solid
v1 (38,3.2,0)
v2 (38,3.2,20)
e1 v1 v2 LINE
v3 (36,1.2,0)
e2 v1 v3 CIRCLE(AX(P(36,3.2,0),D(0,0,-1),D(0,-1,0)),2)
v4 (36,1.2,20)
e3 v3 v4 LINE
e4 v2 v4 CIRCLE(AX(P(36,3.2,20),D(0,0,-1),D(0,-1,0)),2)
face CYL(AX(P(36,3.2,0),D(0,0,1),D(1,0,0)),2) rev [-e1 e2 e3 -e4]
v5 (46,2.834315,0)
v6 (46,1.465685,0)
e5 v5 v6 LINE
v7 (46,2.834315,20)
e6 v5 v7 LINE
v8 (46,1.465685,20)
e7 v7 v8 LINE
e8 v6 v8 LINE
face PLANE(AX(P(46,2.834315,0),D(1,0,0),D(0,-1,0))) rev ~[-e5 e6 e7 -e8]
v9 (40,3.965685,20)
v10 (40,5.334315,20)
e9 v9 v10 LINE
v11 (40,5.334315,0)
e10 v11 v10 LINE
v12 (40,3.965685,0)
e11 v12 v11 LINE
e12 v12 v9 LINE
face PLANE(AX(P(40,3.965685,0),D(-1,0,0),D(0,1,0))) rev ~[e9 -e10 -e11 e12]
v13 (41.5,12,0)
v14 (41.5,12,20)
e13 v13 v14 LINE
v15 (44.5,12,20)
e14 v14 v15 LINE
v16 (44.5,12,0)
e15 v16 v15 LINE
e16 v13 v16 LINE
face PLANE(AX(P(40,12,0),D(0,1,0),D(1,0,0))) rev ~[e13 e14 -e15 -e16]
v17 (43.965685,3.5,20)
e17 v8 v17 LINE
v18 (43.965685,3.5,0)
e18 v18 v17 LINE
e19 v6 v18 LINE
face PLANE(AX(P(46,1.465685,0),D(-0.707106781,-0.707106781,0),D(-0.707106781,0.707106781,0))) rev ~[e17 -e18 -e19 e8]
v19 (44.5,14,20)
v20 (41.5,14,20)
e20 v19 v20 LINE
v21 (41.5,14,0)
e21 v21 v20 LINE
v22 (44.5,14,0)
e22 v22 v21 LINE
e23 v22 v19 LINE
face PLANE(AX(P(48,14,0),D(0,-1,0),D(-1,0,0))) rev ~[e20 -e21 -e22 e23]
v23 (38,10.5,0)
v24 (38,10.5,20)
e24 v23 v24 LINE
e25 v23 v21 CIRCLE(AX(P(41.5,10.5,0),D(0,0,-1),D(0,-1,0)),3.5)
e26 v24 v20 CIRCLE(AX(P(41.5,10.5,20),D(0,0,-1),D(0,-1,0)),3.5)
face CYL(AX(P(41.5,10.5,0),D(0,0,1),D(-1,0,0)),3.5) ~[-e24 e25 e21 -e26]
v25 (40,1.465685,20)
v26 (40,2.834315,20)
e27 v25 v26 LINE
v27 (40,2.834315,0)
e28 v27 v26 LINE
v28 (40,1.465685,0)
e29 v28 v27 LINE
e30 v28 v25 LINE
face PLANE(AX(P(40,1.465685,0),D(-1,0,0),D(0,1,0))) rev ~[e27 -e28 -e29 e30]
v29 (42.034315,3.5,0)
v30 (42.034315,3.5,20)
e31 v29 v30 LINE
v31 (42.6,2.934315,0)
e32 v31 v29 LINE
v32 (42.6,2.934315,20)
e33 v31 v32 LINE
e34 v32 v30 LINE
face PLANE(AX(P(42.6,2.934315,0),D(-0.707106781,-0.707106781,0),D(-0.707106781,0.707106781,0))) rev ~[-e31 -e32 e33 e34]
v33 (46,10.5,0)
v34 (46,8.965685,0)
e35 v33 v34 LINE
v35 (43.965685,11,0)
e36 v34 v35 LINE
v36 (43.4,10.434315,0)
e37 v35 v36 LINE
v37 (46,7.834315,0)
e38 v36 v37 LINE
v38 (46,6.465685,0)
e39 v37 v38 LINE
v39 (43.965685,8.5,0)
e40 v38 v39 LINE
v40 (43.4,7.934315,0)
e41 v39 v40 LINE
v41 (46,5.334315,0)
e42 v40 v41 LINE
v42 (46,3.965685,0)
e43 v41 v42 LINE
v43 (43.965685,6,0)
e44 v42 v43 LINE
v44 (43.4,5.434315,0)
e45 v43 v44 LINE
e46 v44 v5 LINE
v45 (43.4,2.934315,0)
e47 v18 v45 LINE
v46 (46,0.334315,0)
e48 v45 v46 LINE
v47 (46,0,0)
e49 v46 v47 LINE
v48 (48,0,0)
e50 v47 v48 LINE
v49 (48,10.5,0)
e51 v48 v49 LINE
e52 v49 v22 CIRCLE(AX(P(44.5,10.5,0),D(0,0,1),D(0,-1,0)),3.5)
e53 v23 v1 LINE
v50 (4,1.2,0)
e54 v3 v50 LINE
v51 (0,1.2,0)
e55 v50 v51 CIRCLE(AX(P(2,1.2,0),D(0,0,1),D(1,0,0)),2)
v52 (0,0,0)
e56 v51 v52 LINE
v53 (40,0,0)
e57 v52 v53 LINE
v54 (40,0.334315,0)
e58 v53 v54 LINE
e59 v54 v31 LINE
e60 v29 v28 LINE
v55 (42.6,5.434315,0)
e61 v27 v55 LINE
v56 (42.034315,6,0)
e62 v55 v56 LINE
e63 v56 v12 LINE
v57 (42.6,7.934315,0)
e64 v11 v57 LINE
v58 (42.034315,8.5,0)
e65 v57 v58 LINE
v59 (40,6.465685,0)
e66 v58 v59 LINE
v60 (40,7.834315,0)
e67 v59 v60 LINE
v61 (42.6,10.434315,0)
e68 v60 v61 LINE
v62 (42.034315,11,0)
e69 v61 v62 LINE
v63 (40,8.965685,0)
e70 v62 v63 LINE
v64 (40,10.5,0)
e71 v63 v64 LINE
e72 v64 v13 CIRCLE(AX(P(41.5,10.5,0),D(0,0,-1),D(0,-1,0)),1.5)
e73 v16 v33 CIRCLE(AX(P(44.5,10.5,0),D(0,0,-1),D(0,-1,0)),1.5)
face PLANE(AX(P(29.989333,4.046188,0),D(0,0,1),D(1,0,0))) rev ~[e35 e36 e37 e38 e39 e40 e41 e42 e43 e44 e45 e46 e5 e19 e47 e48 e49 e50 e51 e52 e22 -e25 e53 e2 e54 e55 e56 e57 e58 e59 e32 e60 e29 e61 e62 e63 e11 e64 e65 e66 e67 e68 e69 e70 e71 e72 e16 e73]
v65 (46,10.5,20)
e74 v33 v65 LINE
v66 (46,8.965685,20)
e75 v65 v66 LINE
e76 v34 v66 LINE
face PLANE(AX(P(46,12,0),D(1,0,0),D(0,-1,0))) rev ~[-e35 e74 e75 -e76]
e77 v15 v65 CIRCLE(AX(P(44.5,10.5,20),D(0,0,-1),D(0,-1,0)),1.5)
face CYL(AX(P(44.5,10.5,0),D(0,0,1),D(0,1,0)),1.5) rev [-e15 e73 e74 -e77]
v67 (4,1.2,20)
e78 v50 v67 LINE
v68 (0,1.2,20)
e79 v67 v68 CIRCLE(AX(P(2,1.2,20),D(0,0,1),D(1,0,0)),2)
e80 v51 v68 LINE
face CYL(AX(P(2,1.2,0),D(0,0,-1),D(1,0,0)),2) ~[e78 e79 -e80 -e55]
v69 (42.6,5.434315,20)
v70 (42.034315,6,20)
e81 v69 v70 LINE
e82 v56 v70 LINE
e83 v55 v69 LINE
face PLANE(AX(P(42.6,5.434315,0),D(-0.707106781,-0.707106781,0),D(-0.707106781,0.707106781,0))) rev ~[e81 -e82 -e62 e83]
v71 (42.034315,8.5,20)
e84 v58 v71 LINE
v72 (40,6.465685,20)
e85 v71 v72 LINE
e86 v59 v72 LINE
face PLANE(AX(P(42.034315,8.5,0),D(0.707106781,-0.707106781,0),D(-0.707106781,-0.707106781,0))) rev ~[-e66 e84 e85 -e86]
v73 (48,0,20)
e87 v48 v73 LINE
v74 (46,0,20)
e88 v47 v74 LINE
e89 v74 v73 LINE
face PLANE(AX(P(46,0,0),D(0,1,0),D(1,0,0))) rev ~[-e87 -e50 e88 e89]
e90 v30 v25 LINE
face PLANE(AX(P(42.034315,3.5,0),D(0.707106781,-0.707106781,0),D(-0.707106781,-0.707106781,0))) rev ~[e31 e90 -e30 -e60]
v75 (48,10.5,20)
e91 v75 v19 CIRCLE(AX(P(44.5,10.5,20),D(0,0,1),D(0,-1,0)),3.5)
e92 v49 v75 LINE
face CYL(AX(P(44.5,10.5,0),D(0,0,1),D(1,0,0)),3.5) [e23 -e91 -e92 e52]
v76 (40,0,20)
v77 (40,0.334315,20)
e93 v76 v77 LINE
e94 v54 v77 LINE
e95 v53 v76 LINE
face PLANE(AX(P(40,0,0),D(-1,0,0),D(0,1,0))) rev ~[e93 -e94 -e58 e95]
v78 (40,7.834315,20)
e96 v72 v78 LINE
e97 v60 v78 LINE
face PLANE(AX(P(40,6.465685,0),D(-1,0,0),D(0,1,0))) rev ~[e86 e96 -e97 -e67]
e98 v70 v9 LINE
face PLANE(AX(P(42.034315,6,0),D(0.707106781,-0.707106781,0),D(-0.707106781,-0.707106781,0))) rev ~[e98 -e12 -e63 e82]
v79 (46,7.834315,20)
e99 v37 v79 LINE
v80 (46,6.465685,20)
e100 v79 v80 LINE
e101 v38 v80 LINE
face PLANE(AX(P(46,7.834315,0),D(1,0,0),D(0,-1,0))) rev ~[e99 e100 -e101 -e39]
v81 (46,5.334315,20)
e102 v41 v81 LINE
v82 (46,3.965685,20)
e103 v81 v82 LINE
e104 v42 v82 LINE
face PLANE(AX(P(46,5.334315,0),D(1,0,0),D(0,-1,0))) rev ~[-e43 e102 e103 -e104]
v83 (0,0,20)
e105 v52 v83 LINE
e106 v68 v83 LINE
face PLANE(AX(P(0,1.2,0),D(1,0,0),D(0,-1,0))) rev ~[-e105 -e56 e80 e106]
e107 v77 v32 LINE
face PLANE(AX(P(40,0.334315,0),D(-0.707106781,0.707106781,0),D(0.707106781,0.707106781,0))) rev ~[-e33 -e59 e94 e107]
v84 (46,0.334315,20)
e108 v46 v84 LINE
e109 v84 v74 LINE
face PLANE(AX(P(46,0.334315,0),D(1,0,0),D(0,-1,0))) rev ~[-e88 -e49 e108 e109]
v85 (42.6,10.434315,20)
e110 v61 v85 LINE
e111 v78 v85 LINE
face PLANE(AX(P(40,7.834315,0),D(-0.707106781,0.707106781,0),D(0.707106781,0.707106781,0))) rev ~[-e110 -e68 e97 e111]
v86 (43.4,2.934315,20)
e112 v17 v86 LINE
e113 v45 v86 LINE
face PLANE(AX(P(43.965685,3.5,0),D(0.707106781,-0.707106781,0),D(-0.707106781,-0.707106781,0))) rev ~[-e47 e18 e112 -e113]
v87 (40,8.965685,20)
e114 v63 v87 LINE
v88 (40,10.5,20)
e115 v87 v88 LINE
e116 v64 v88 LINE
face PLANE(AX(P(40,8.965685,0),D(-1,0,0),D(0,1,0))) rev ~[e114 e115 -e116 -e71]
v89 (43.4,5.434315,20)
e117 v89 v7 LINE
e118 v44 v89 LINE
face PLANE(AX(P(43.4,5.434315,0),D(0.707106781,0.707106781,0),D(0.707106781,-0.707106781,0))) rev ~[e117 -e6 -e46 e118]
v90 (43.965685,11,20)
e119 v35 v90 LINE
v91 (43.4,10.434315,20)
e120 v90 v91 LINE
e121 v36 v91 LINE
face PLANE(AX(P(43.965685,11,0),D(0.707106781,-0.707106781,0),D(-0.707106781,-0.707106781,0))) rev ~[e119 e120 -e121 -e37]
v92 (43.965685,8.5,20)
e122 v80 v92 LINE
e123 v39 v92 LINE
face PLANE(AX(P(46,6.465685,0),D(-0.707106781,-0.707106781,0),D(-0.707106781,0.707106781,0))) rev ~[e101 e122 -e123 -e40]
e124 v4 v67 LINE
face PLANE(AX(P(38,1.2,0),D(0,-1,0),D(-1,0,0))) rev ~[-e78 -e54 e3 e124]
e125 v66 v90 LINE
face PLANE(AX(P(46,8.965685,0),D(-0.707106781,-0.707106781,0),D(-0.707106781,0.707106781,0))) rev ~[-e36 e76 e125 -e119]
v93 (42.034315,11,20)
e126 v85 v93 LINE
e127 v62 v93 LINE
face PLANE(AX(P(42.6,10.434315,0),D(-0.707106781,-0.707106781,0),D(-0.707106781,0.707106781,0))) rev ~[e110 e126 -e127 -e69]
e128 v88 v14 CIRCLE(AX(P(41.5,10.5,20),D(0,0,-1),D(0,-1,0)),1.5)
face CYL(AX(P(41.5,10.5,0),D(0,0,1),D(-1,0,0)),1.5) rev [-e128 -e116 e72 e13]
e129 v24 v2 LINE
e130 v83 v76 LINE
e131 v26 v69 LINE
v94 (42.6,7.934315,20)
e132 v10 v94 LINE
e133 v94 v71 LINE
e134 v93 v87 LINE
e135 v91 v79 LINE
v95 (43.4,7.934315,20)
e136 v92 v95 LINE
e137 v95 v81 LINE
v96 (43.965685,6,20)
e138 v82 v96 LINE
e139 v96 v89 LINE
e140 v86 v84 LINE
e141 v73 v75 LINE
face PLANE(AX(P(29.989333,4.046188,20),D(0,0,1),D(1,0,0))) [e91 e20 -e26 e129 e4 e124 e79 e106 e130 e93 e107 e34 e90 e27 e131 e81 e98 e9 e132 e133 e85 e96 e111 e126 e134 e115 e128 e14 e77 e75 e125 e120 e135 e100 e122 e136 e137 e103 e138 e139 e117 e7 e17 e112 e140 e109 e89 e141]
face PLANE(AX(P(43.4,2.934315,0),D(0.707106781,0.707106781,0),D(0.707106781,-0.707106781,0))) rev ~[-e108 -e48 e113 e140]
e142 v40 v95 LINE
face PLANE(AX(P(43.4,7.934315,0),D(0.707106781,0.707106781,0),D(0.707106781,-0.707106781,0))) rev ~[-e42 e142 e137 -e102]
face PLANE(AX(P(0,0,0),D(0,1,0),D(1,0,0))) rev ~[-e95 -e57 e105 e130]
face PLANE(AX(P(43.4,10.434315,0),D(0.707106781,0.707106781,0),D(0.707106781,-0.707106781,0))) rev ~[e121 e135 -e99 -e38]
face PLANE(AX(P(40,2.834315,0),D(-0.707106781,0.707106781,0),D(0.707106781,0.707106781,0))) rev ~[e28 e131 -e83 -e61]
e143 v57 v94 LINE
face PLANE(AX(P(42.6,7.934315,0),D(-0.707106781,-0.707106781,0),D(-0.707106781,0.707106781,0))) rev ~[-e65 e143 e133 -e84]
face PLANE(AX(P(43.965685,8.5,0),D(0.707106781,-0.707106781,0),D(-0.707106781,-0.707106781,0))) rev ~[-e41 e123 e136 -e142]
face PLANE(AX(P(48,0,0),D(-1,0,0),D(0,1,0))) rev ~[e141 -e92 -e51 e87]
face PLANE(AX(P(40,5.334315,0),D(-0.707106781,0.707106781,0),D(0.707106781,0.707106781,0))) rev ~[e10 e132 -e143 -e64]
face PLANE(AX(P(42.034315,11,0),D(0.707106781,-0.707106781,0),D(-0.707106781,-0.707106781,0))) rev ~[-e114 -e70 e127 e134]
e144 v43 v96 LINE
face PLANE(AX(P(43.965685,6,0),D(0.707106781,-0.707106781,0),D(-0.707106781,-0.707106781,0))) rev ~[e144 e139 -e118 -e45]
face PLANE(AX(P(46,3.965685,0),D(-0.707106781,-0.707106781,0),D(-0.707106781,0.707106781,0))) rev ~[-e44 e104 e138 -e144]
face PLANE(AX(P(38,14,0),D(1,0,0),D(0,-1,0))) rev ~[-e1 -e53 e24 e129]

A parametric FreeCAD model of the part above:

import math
import FreeCAD as App
import Part
import Sketcher

V = App.Vector
Q = App.Units.Quantity


def edges_at(feature, points):
    """Names of the edges that pass closest to the given points."""
    edges = feature.Shape.Edges
    near = lambda p: min(range(len(edges)), key=lambda i: edges[i].distToShape(Part.Vertex(*p))[0])
    return sorted({f"Edge{near(p) + 1}" for p in points})

doc = App.newDocument("Part")
body = doc.addObject("PartDesign::Body", "Body")

# Sketch on XY plane
sketch1 = body.newObject("Sketcher::SketchObject", "Sketch")
sketch1.AttachmentSupport = (doc.getObject("XY_Plane"), [""])
sketch1.MapMode = "FlatFace"
sketch1.addGeometry(Part.LineSegment(V(0, 1.2, 0), V(0, 0, 0)), False)
sketch1.addGeometry(Part.LineSegment(V(0, 0, 0), V(40, 0, 0)), False)
sketch1.addGeometry(Part.LineSegment(V(40, 0, 0), V(40, 0.334315, 0)), False)
sketch1.addGeometry(Part.LineSegment(V(40, 0.334315, 0), V(42.6, 2.934315, 0)), False)
sketch1.addGeometry(Part.LineSegment(V(42.6, 2.934315, 0), V(42.034315, 3.5, 0)), False)
sketch1.addGeometry(Part.LineSegment(V(42.034315, 3.5, 0), V(40, 1.465685, 0)), False)
sketch1.addGeometry(Part.LineSegment(V(40, 1.465685, 0), V(40, 2.834315, 0)), False)
sketch1.addGeometry(Part.LineSegment(V(40, 2.834315, 0), V(42.6, 5.434315, 0)), False)
sketch1.addGeometry(Part.LineSegment(V(42.6, 5.434315, 0), V(42.034315, 6, 0)), False)
sketch1.addGeometry(Part.LineSegment(V(42.034315, 6, 0), V(40, 3.965685, 0)), False)
sketch1.addGeometry(Part.LineSegment(V(40, 3.965685, 0), V(40, 5.334315, 0)), False)
sketch1.addGeometry(Part.LineSegment(V(40, 5.334315, 0), V(42.6, 7.934315, 0)), False)
sketch1.addGeometry(Part.LineSegment(V(42.6, 7.934315, 0), V(42.034315, 8.5, 0)), False)
sketch1.addGeometry(Part.LineSegment(V(42.034315, 8.5, 0), V(40, 6.465685, 0)), False)
sketch1.addGeometry(Part.LineSegment(V(40, 6.465685, 0), V(40, 7.834315, 0)), False)
sketch1.addGeometry(Part.LineSegment(V(40, 7.834315, 0), V(42.6, 10.434315, 0)), False)
sketch1.addGeometry(Part.LineSegment(V(42.6, 10.434315, 0), V(42.034315, 11, 0)), False)
sketch1.addGeometry(Part.LineSegment(V(42.034315, 11, 0), V(40, 8.965685, 0)), False)
sketch1.addGeometry(Part.LineSegment(V(40, 8.965685, 0), V(40, 12, 0)), False)
sketch1.addGeometry(Part.LineSegment(V(40, 12, 0), V(46, 12, 0)), False)
sketch1.addGeometry(Part.LineSegment(V(46, 12, 0), V(46, 8.965685, 0)), False)
sketch1.addGeometry(Part.LineSegment(V(46, 8.965685, 0), V(43.965685, 11, 0)), False)
sketch1.addGeometry(Part.LineSegment(V(43.965685, 11, 0), V(43.4, 10.434315, 0)), False)
sketch1.addGeometry(Part.LineSegment(V(43.4, 10.434315, 0), V(46, 7.834315, 0)), False)
sketch1.addGeometry(Part.LineSegment(V(46, 7.834315, 0), V(46, 6.465685, 0)), False)
sketch1.addGeometry(Part.LineSegment(V(46, 6.465685, 0), V(43.965685, 8.5, 0)), False)
sketch1.addGeometry(Part.LineSegment(V(43.965685, 8.5, 0), V(43.4, 7.934315, 0)), False)
sketch1.addGeometry(Part.LineSegment(V(43.4, 7.934315, 0), V(46, 5.334315, 0)), False)
sketch1.addGeometry(Part.LineSegment(V(46, 5.334315, 0), V(46, 3.965685, 0)), False)
sketch1.addGeometry(Part.LineSegment(V(46, 3.965685, 0), V(43.965685, 6, 0)), False)
sketch1.addGeometry(Part.LineSegment(V(43.965685, 6, 0), V(43.4, 5.434315, 0)), False)
sketch1.addGeometry(Part.LineSegment(V(43.4, 5.434315, 0), V(46, 2.834315, 0)), False)
sketch1.addGeometry(Part.LineSegment(V(46, 2.834315, 0), V(46, 1.465685, 0)), False)
sketch1.addGeometry(Part.LineSegment(V(46, 1.465685, 0), V(43.965685, 3.5, 0)), False)
sketch1.addGeometry(Part.LineSegment(V(43.965685, 3.5, 0), V(43.4, 2.934315, 0)), False)
sketch1.addGeometry(Part.LineSegment(V(43.4, 2.934315, 0), V(46, 0.334315, 0)), False)
sketch1.addGeometry(Part.LineSegment(V(46, 0.334315, 0), V(46, 0, 0)), False)
sketch1.addGeometry(Part.LineSegment(V(46, 0, 0), V(48, 0, 0)), False)
sketch1.addGeometry(Part.LineSegment(V(48, 0, 0), V(48, 14, 0)), False)
sketch1.addGeometry(Part.LineSegment(V(48, 14, 0), V(38, 14, 0)), False)
sketch1.addGeometry(Part.LineSegment(V(38, 14, 0), V(38, 1.2, 0)), False)
sketch1.addGeometry(Part.LineSegment(V(38, 1.2, 0), V(4, 1.2, 0)), False)
sketch1.addGeometry(Part.ArcOfCircle(Part.Circle(V(2, 1.2, 0), V(0, 0, 1), 2), math.radians(0), math.radians(180)), False)
sketch1.addConstraint(Sketcher.Constraint("Coincident", 0, 2, 1, 1))
sketch1.addConstraint(Sketcher.Constraint("Coincident", 1, 2, 2, 1))
sketch1.addConstraint(Sketcher.Constraint("Coincident", 2, 2, 3, 1))
sketch1.addConstraint(Sketcher.Constraint("Coincident", 3, 2, 4, 1))
sketch1.addConstraint(Sketcher.Constraint("Coincident", 4, 2, 5, 1))
sketch1.addConstraint(Sketcher.Constraint("Coincident", 5, 2, 6, 1))
sketch1.addConstraint(Sketcher.Constraint("Coincident", 6, 2, 7, 1))
sketch1.addConstraint(Sketcher.Constraint("Coincident", 7, 2, 8, 1))
sketch1.addConstraint(Sketcher.Constraint("Coincident", 8, 2, 9, 1))
sketch1.addConstraint(Sketcher.Constraint("Coincident", 9, 2, 10, 1))
sketch1.addConstraint(Sketcher.Constraint("Coincident", 10, 2, 11, 1))
sketch1.addConstraint(Sketcher.Constraint("Coincident", 11, 2, 12, 1))
sketch1.addConstraint(Sketcher.Constraint("Coincident", 12, 2, 13, 1))
sketch1.addConstraint(Sketcher.Constraint("Coincident", 13, 2, 14, 1))
sketch1.addConstraint(Sketcher.Constraint("Coincident", 14, 2, 15, 1))
sketch1.addConstraint(Sketcher.Constraint("Coincident", 15, 2, 16, 1))
sketch1.addConstraint(Sketcher.Constraint("Coincident", 16, 2, 17, 1))
sketch1.addConstraint(Sketcher.Constraint("Coincident", 17, 2, 18, 1))
sketch1.addConstraint(Sketcher.Constraint("Coincident", 18, 2, 19, 1))
sketch1.addConstraint(Sketcher.Constraint("Coincident", 19, 2, 20, 1))
sketch1.addConstraint(Sketcher.Constraint("Coincident", 20, 2, 21, 1))
sketch1.addConstraint(Sketcher.Constraint("Coincident", 21, 2, 22, 1))
sketch1.addConstraint(Sketcher.Constraint("Coincident", 22, 2, 23, 1))
sketch1.addConstraint(Sketcher.Constraint("Coincident", 23, 2, 24, 1))
sketch1.addConstraint(Sketcher.Constraint("Coincident", 24, 2, 25, 1))
sketch1.addConstraint(Sketcher.Constraint("Coincident", 25, 2, 26, 1))
sketch1.addConstraint(Sketcher.Constraint("Coincident", 26, 2, 27, 1))
sketch1.addConstraint(Sketcher.Constraint("Coincident", 27, 2, 28, 1))
sketch1.addConstraint(Sketcher.Constraint("Coincident", 28, 2, 29, 1))
sketch1.addConstraint(Sketcher.Constraint("Coincident", 29, 2, 30, 1))
sketch1.addConstraint(Sketcher.Constraint("Coincident", 30, 2, 31, 1))
sketch1.addConstraint(Sketcher.Constraint("Coincident", 31, 2, 32, 1))
sketch1.addConstraint(Sketcher.Constraint("Coincident", 32, 2, 33, 1))
sketch1.addConstraint(Sketcher.Constraint("Coincident", 33, 2, 34, 1))
sketch1.addConstraint(Sketcher.Constraint("Coincident", 34, 2, 35, 1))
sketch1.addConstraint(Sketcher.Constraint("Coincident", 35, 2, 36, 1))
sketch1.addConstraint(Sketcher.Constraint("Coincident", 36, 2, 37, 1))
sketch1.addConstraint(Sketcher.Constraint("Coincident", 37, 2, 38, 1))
sketch1.addConstraint(Sketcher.Constraint("Coincident", 38, 2, 39, 1))
sketch1.addConstraint(Sketcher.Constraint("Coincident", 39, 2, 40, 1))
sketch1.addConstraint(Sketcher.Constraint("Coincident", 40, 2, 41, 1))
sketch1.addConstraint(Sketcher.Constraint("Coincident", 41, 2, 42, 1))
sketch1.addConstraint(Sketcher.Constraint("Tangent", 42, 2, 0, 1))
sketch1.addConstraint(Sketcher.Constraint("Vertical", 0))
sketch1.addConstraint(Sketcher.Constraint("Horizontal", 1))
sketch1.addConstraint(Sketcher.Constraint("Vertical", 2))
sketch1.addConstraint(Sketcher.Constraint("Vertical", 6))
sketch1.addConstraint(Sketcher.Constraint("Vertical", 10))
sketch1.addConstraint(Sketcher.Constraint("Vertical", 14))
sketch1.addConstraint(Sketcher.Constraint("Vertical", 18))
sketch1.addConstraint(Sketcher.Constraint("Horizontal", 19))
sketch1.addConstraint(Sketcher.Constraint("Vertical", 20))
sketch1.addConstraint(Sketcher.Constraint("Vertical", 24))
sketch1.addConstraint(Sketcher.Constraint("Vertical", 28))
sketch1.addConstraint(Sketcher.Constraint("Vertical", 32))
sketch1.addConstraint(Sketcher.Constraint("Vertical", 36))
sketch1.addConstraint(Sketcher.Constraint("Horizontal", 37))
sketch1.addConstraint(Sketcher.Constraint("Vertical", 38))
sketch1.addConstraint(Sketcher.Constraint("Horizontal", 39))
sketch1.addConstraint(Sketcher.Constraint("Vertical", 40))
sketch1.addConstraint(Sketcher.Constraint("Horizontal", 41))
sketch1.addConstraint(Sketcher.Constraint("Coincident", 0, 2, -1, 1))
sketch1.addConstraint(Sketcher.Constraint("PointOnObject", 36, 2, -1))
sketch1.addConstraint(Sketcher.Constraint("Perpendicular", 3, 4))
sketch1.addConstraint(Sketcher.Constraint("Perpendicular", 4, 5))
sketch1.addConstraint(Sketcher.Constraint("Parallel", 5, 7))
sketch1.addConstraint(Sketcher.Constraint("Perpendicular", 7, 8))
sketch1.addConstraint(Sketcher.Constraint("Perpendicular", 8, 9))
sketch1.addConstraint(Sketcher.Constraint("Parallel", 9, 11))
sketch1.addConstraint(Sketcher.Constraint("Perpendicular", 11, 12))
sketch1.addConstraint(Sketcher.Constraint("Perpendicular", 12, 13))
sketch1.addConstraint(Sketcher.Constraint("Parallel", 13, 15))
sketch1.addConstraint(Sketcher.Constraint("Perpendicular", 15, 16))
sketch1.addConstraint(Sketcher.Constraint("Perpendicular", 16, 17))
sketch1.addConstraint(Sketcher.Constraint("Perpendicular", 17, 21))
sketch1.addConstraint(Sketcher.Constraint("Perpendicular", 21, 22))
sketch1.addConstraint(Sketcher.Constraint("Perpendicular", 22, 23))
sketch1.addConstraint(Sketcher.Constraint("Parallel", 23, 25))
sketch1.addConstraint(Sketcher.Constraint("Perpendicular", 25, 26))
sketch1.addConstraint(Sketcher.Constraint("Perpendicular", 26, 27))
sketch1.addConstraint(Sketcher.Constraint("Parallel", 27, 29))
sketch1.addConstraint(Sketcher.Constraint("Perpendicular", 29, 30))
sketch1.addConstraint(Sketcher.Constraint("Perpendicular", 30, 31))
sketch1.addConstraint(Sketcher.Constraint("Parallel", 31, 33))
sketch1.addConstraint(Sketcher.Constraint("Perpendicular", 33, 34))
sketch1.addConstraint(Sketcher.Constraint("Perpendicular", 34, 35))
sketch1.addConstraint(Sketcher.Constraint("Horizontal", 17, 2, 20, 2))
sketch1.addConstraint(Sketcher.Constraint("Horizontal", 16, 2, 21, 2))
sketch1.addConstraint(Sketcher.Constraint("Horizontal", 15, 2, 22, 2))
sketch1.addConstraint(Sketcher.Constraint("Horizontal", 14, 2, 23, 2))
sketch1.addConstraint(Sketcher.Constraint("Horizontal", 13, 2, 24, 2))
sketch1.addConstraint(Sketcher.Constraint("Horizontal", 12, 2, 25, 2))
sketch1.addConstraint(Sketcher.Constraint("Horizontal", 11, 2, 26, 2))
sketch1.addConstraint(Sketcher.Constraint("Horizontal", 10, 2, 27, 2))
sketch1.addConstraint(Sketcher.Constraint("Horizontal", 9, 2, 28, 2))
sketch1.addConstraint(Sketcher.Constraint("Horizontal", 8, 2, 29, 2))
sketch1.addConstraint(Sketcher.Constraint("Horizontal", 7, 2, 30, 2))
sketch1.addConstraint(Sketcher.Constraint("Horizontal", 6, 2, 31, 2))
sketch1.addConstraint(Sketcher.Constraint("Horizontal", 5, 2, 32, 2))
sketch1.addConstraint(Sketcher.Constraint("Horizontal", 4, 2, 33, 2))
sketch1.addConstraint(Sketcher.Constraint("Horizontal", 3, 2, 34, 2))
sketch1.addConstraint(Sketcher.Constraint("Horizontal", 2, 2, 35, 2))
sketch1.addConstraint(Sketcher.Constraint("Horizontal", 42, 3, 40, 2))
sketch1.addConstraint(Sketcher.Constraint("Vertical", 2, 2, 5, 2))
sketch1.addConstraint(Sketcher.Constraint("Vertical", 3, 2, 7, 2))
sketch1.addConstraint(Sketcher.Constraint("Vertical", 4, 2, 8, 2))
sketch1.addConstraint(Sketcher.Constraint("Vertical", 6, 2, 9, 2))
sketch1.addConstraint(Sketcher.Constraint("Vertical", 7, 2, 11, 2))
sketch1.addConstraint(Sketcher.Constraint("Vertical", 8, 2, 12, 2))
sketch1.addConstraint(Sketcher.Constraint("Vertical", 10, 2, 13, 2))
sketch1.addConstraint(Sketcher.Constraint("Vertical", 11, 2, 15, 2))
sketch1.addConstraint(Sketcher.Constraint("Vertical", 12, 2, 16, 2))
sketch1.addConstraint(Sketcher.Constraint("Vertical", 14, 2, 17, 2))
sketch1.addConstraint(Sketcher.Constraint("Vertical", 20, 2, 23, 2))
sketch1.addConstraint(Sketcher.Constraint("Equal", 6, 10))
sketch1.addConstraint(Sketcher.Constraint("Equal", 10, 14))
sketch1.addConstraint(Sketcher.Constraint("Radius", 42, Q("2 mm")))
sketch1.addConstraint(Sketcher.Constraint("DistanceX", 1, 1, 1, 2, Q("40 mm")))
sketch1.addConstraint(Sketcher.Constraint("DistanceX", 19, 1, 19, 2, Q("6 mm")))
sketch1.addConstraint(Sketcher.Constraint("DistanceX", 37, 1, 37, 2, Q("2 mm")))
sketch1.addConstraint(Sketcher.Constraint("DistanceX", 39, 2, 39, 1, Q("10 mm")))
sketch1.addConstraint(Sketcher.Constraint("DistanceY", 38, 1, 38, 2, Q("14 mm")))
sketch1.addConstraint(Sketcher.Constraint("DistanceY", 0, 2, 0, 1, Q("1.2 mm")))
sketch1.addConstraint(Sketcher.Constraint("DistanceY", -1, 1, 8, 2, Q("6 mm")))
sketch1.addConstraint(Sketcher.Constraint("DistanceY", -1, 1, 16, 2, Q("11 mm")))
sketch1.addConstraint(Sketcher.Constraint("DistanceY", -1, 1, 18, 2, Q("12 mm")))
sketch1.addConstraint(Sketcher.Constraint("Distance", 4, Q("0.799999 mm")))
sketch1.addConstraint(Sketcher.Constraint("DistanceX", -1, 1, 3, 2, Q("42.6 mm")))
pad1 = body.newObject("PartDesign::Pad", "Pad")
pad1.Profile = sketch1
pad1.Length = 20
doc.recompute()

fillet = body.newObject("PartDesign::Fillet", "Fillet")
fillet.Base = (pad1, edges_at(pad1, [(40, 12, 10), (46, 12, 10)]))
fillet.Radius = 1.5
doc.recompute()

fillet2 = body.newObject("PartDesign::Fillet", "Fillet001")
fillet2.Base = (fillet, edges_at(fillet, [(38, 14, 10), (48, 14, 10)]))
fillet2.Radius = 3.5
doc.recompute()

fillet3 = body.newObject("PartDesign::Fillet", "Fillet002")
fillet3.Base = (fillet2, edges_at(fillet2, [(38, 1.2, 10)]))
fillet3.Radius = 2

doc.recompute()
